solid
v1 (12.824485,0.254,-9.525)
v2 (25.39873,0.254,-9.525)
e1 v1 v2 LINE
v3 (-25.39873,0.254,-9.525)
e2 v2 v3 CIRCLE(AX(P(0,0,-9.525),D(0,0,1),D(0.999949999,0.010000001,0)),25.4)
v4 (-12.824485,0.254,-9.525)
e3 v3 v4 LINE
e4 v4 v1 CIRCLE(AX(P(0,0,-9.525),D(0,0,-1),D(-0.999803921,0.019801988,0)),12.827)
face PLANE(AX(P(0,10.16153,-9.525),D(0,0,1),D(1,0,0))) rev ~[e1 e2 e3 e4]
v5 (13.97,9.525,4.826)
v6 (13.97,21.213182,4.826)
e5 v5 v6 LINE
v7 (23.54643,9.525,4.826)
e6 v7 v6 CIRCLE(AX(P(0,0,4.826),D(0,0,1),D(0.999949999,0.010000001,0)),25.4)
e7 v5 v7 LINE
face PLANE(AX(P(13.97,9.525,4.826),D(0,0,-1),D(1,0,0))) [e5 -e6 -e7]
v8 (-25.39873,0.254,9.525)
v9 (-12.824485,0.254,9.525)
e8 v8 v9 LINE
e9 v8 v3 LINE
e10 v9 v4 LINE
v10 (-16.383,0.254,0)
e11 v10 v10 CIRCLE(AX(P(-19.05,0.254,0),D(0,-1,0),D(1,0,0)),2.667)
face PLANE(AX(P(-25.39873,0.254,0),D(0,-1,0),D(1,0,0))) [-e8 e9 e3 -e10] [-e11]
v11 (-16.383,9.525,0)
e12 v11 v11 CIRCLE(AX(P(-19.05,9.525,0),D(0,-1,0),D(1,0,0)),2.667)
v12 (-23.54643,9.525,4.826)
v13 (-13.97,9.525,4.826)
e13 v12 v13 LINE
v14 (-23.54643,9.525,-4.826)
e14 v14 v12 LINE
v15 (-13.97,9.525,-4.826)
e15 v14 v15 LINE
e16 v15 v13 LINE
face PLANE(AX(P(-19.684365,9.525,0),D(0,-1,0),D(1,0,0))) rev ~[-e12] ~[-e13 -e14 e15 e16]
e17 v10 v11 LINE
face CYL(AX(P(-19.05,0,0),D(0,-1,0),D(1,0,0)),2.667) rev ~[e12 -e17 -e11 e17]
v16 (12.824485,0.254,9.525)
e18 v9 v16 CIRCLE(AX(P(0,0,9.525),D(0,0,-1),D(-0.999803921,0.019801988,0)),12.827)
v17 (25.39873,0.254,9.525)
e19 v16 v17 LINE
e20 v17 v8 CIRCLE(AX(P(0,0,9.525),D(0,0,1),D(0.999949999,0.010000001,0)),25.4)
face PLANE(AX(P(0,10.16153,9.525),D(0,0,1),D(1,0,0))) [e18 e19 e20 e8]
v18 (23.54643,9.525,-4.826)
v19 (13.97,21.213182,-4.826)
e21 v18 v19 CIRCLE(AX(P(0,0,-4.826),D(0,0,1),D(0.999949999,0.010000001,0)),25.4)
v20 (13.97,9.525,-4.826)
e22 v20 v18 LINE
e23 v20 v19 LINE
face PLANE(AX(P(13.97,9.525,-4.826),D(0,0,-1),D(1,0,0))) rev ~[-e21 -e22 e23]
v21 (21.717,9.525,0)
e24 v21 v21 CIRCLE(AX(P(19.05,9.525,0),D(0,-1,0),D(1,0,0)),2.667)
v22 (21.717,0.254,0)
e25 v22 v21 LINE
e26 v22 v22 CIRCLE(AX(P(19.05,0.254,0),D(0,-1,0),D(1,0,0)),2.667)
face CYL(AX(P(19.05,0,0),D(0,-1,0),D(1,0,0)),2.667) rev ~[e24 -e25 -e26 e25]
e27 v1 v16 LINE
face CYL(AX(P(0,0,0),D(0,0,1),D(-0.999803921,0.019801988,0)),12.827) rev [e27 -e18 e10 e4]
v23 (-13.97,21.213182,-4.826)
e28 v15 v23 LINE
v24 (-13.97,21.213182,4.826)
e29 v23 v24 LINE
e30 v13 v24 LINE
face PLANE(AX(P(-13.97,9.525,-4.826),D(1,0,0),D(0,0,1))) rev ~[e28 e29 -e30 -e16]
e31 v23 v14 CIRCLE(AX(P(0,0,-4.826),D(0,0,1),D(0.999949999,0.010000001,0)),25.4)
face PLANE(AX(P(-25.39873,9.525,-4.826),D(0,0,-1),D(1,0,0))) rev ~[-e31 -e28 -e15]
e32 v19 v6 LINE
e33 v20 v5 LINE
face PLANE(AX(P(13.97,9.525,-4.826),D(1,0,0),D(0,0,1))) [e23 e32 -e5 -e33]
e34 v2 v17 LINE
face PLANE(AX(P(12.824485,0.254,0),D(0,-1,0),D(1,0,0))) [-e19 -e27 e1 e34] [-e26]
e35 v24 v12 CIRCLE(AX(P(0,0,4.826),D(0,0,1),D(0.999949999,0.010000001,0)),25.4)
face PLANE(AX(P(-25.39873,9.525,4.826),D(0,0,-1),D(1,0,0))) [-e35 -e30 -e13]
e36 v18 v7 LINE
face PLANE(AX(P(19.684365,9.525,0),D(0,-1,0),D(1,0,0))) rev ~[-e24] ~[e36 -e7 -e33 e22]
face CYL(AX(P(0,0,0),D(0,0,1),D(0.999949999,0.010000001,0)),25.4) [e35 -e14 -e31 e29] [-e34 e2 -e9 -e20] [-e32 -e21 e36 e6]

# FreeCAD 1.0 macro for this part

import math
import FreeCAD as App
import Part
import Sketcher
Q = App.Units.Quantity

doc = App.newDocument("Part")
params = doc.addObject("Spreadsheet::Sheet", "Params")
for row, (alias, value) in enumerate([
    ("sketch1_radius", "1 in"),
    ("sketch1_radius2", "0.505 in"),
    ("pad1_length", "0.75 in"),
    ("sketch2_diameter", "0.21 in"),
    ("sketch3_height", "0.38 in"),
], start=1):
    params.set(f"A{row}", alias)
    params.set(f"B{row}", "=" + value)
    params.setAlias(f"B{row}", alias)

body = doc.addObject("PartDesign::Body", "Body")

# Sketch on XY plane
sketch1 = body.newObject("Sketcher::SketchObject", "Sketch")
sketch1.AttachmentSupport = (doc.getObject("XY_Plane"), [""])
sketch1.MapMode = "FlatFace"
sketch1.addGeometry(Part.ArcOfCircle(Part.Circle(App.Vector(0, 0, 0), App.Vector(0, 0, 1), 13), math.radians(1), math.radians(179)), False)
sketch1.addGeometry(Part.LineSegment(App.Vector(13, 0, 0), App.Vector(25, 0, 0)), False)
sketch1.addGeometry(Part.ArcOfCircle(Part.Circle(App.Vector(0, 0, 0), App.Vector(0, 0, 1), 25), math.radians(1), math.radians(179)), False)
sketch1.addGeometry(Part.LineSegment(App.Vector(-25, 0, 0), App.Vector(-13, 0, 0)), False)
sketch1.addConstraint(Sketcher.Constraint("Coincident", 0, 1, 1, 1))
sketch1.addConstraint(Sketcher.Constraint("Coincident", 1, 2, 2, 1))
sketch1.addConstraint(Sketcher.Constraint("Coincident", 2, 2, 3, 1))
sketch1.addConstraint(Sketcher.Constraint("Coincident", 3, 2, 0, 2))
sketch1.addConstraint(Sketcher.Constraint("Horizontal", 1))
sketch1.addConstraint(Sketcher.Constraint("Horizontal", 3))
sketch1.addConstraint(Sketcher.Constraint("Coincident", 0, 3, -1, 1))
sketch1.addConstraint(Sketcher.Constraint("Coincident", 2, 3, -1, 1))
sketch1.addConstraint(Sketcher.Constraint("Horizontal", 1, 2, 2, 2))
sketch1.addConstraint(Sketcher.Constraint("Radius", 2, Q("1 in")))
sketch1.addConstraint(Sketcher.Constraint("Radius", 0, Q("0.505 in")))
sketch1.addConstraint(Sketcher.Constraint("DistanceY", -1, 1, 0, 1, Q("0.01 in")))
sketch1.setExpression("Constraints[9]", "Params.sketch1_radius")
sketch1.setExpression("Constraints[10]", "Params.sketch1_radius2")
pad1 = body.newObject("PartDesign::Pad", "Pad")
pad1.Profile = sketch1
pad1.setExpression("Length", "Params.pad1_length")
pad1.Midplane = True

# Sketch on XZ plane
sketch2 = body.newObject("Sketcher::SketchObject", "Sketch001")
sketch2.AttachmentSupport = (doc.getObject("XZ_Plane"), [""])
sketch2.MapMode = "FlatFace"
sketch2.addGeometry(Part.Circle(App.Vector(-19.1, 0, 0), App.Vector(0, 0, 1), 2.7), False)
sketch2.addGeometry(Part.Circle(App.Vector(19.1, 0, 0), App.Vector(0, 0, 1), 2.7), False)
sketch2.addConstraint(Sketcher.Constraint("Equal", 0, 1))
sketch2.addConstraint(Sketcher.Constraint("Symmetric", 0, 3, 1, 3, -1, 1))
sketch2.addConstraint(Sketcher.Constraint("PointOnObject", 0, 3, -1))
sketch2.addConstraint(Sketcher.Constraint("Diameter", 0, Q("0.21 in")))
sketch2.addConstraint(Sketcher.Constraint("DistanceX", 0, 3, 1, 3, Q("1.5 in")))
sketch2.setExpression("Constraints[3]", "Params.sketch2_diameter")
pocket1 = body.newObject("PartDesign::Pocket", "Pocket")
pocket1.Profile = sketch2
pocket1.Type = "ThroughAll"

# Sketch on XZ plane
sketch3 = body.newObject("Sketcher::SketchObject", "Sketch002")
sketch3.AttachmentSupport = (doc.getObject("XZ_Plane"), [""])
sketch3.MapMode = "FlatFace"
sketch3.AttachmentOffset = App.Placement(App.Vector(0, 0, -0.375 * 25.4), App.Rotation())
sketch3.addGeometry(Part.LineSegment(App.Vector(14, 5, 0), App.Vector(14, -5, 0)), False)
sketch3.addGeometry(Part.LineSegment(App.Vector(14, -5, 0), App.Vector(25, -5, 0)), False)
sketch3.addGeometry(Part.LineSegment(App.Vector(25, -5, 0), App.Vector(25, 5, 0)), False)
sketch3.addGeometry(Part.LineSegment(App.Vector(25, 5, 0), App.Vector(14, 5, 0)), False)
sketch3.addGeometry(Part.LineSegment(App.Vector(-25, 5, 0), App.Vector(-25, -5, 0)), False)
sketch3.addGeometry(Part.LineSegment(App.Vector(-25, -5, 0), App.Vector(-14, -5, 0)), False)
sketch3.addGeometry(Part.LineSegment(App.Vector(-14, -5, 0), App.Vector(-14, 5, 0)), False)
sketch3.addGeometry(Part.LineSegment(App.Vector(-14, 5, 0), App.Vector(-25, 5, 0)), False)
sketch3.addConstraint(Sketcher.Constraint("Coincident", 0, 2, 1, 1))
sketch3.addConstraint(Sketcher.Constraint("Coincident", 1, 2, 2, 1))
sketch3.addConstraint(Sketcher.Constraint("Coincident", 2, 2, 3, 1))
sketch3.addConstraint(Sketcher.Constraint("Coincident", 3, 2, 0, 1))
sketch3.addConstraint(Sketcher.Constraint("Coincident", 4, 2, 5, 1))
sketch3.addConstraint(Sketcher.Constraint("Coincident", 5, 2, 6, 1))
sketch3.addConstraint(Sketcher.Constraint("Coincident", 6, 2, 7, 1))
sketch3.addConstraint(Sketcher.Constraint("Coincident", 7, 2, 4, 1))
sketch3.addConstraint(Sketcher.Constraint("Vertical", 0))
sketch3.addConstraint(Sketcher.Constraint("Horizontal", 1))
sketch3.addConstraint(Sketcher.Constraint("Vertical", 2))
sketch3.addConstraint(Sketcher.Constraint("Horizontal", 3))
sketch3.addConstraint(Sketcher.Constraint("Vertical", 4))
sketch3.addConstraint(Sketcher.Constraint("Horizontal", 5))
sketch3.addConstraint(Sketcher.Constraint("Vertical", 6))
sketch3.addConstraint(Sketcher.Constraint("Horizontal", 7))
sketch3.addConstraint(Sketcher.Constraint("Symmetric", 2, 2, 4, 2, -1, 1))
sketch3.addConstraint(Sketcher.Constraint("Symmetric", 0, 2, 6, 2, -1, 1))
sketch3.addConstraint(Sketcher.Constraint("Horizontal", 1, 2, 4, 2))
sketch3.addConstraint(Sketcher.Constraint("DistanceY", 0, 2, 0, 1, Q("0.38 in")))
sketch3.addConstraint(Sketcher.Constraint("DistanceX", 5, 2, 0, 2, Q("1.1 in")))
sketch3.addConstraint(Sketcher.Constraint("DistanceX", 4, 2, 1, 2, Q("1.9999 in")))
sketch3.setExpression("Constraints[19]", "Params.sketch3_height")
pocket2 = body.newObject("PartDesign::Pocket", "Pocket001")
pocket2.Profile = sketch3
pocket2.Type = "ThroughAll"

doc.recompute()
